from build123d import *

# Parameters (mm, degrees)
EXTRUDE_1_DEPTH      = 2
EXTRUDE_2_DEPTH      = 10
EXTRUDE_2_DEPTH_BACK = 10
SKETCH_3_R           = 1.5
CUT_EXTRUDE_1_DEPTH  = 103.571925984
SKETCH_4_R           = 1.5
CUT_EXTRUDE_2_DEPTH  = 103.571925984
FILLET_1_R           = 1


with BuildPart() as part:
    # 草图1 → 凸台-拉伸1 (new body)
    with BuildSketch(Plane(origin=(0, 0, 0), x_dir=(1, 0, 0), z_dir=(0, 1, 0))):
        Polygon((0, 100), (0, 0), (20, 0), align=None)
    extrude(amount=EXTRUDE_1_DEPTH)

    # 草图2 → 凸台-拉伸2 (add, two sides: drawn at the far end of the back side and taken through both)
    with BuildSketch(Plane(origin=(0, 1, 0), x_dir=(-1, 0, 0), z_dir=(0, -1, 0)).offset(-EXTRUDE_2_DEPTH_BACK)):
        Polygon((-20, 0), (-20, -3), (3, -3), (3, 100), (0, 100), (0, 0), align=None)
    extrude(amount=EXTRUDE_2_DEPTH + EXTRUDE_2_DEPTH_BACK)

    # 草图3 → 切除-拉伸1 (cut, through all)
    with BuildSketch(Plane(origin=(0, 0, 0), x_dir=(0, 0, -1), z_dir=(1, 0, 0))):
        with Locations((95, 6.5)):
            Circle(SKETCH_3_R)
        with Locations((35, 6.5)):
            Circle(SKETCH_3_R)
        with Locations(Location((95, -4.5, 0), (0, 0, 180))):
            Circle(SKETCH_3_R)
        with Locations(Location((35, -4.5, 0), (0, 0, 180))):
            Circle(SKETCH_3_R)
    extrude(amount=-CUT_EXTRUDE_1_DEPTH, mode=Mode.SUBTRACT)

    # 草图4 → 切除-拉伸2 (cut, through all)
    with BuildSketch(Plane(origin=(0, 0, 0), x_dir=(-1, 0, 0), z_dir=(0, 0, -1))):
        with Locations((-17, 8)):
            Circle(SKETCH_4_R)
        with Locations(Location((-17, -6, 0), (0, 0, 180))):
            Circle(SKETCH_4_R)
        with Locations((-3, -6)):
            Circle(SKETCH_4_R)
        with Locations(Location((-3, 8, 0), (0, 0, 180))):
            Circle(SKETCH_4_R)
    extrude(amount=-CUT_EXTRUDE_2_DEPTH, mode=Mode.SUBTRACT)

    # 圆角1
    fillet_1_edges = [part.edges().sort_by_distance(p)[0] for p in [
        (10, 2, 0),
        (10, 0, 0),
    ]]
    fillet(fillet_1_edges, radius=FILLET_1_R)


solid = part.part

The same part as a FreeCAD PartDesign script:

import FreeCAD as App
import Part
import Sketcher
from FreeCAD import Vector


def edges_at(feature, points):
    """Names of the edges that pass closest to the given points."""
    edges = feature.Shape.Edges
    near = lambda p: min(range(len(edges)), key=lambda i: edges[i].distToShape(Part.Vertex(*p))[0])
    return sorted({f"Edge{near(p) + 1}" for p in points})

doc = App.newDocument("Part")
params = doc.addObject("Spreadsheet::Sheet", "Params")
for row, (alias, value) in enumerate([
    ("sketch1_width", "20 mm"),
    ("sketch1_height", "100 mm"),
    ("pad1_length", "2 mm"),
    ("sketch2_width", "23 mm"),
    ("sketch2_width2", "3 mm"),
    ("sketch2_height", "103 mm"),
    ("pad2_length", "10 mm"),
    ("pad2_length2", "10 mm"),
    ("sketch3_diameter", "3 mm"),
    ("sketch4_diameter", "3 mm"),
    ("fillet_radius", "1 mm"),
], start=1):
    params.set(f"A{row}", alias)
    params.set(f"B{row}", "=" + value)
    params.setAlias(f"B{row}", alias)

body = doc.addObject("PartDesign::Body", "Body")

sketch1 = body.newObject("Sketcher::SketchObject", "Sketch")
sketch1.AttachmentSupport = (doc.getObject("XZ_Plane"), [""])
sketch1.MapMode = "FlatFace"
sketch1.addGeometry([
    Part.LineSegment(Vector(0, -100, 0), Vector(0, 0, 0)),
    Part.LineSegment(Vector(0, 0, 0), Vector(20, 0, 0)),
    Part.LineSegment(Vector(20, 0, 0), Vector(0, -100, 0)),
], False)
sketch1.addConstraint([
    Sketcher.Constraint("Coincident", 0, 2, 1, 1),
    Sketcher.Constraint("Coincident", 1, 2, 2, 1),
    Sketcher.Constraint("Coincident", 2, 2, 0, 1),
    Sketcher.Constraint("Vertical", 0),
    Sketcher.Constraint("Horizontal", 1),
    Sketcher.Constraint("Coincident", 0, 2, -1, 1),
    Sketcher.Constraint("DistanceX", 1, 1, 1, 2, 20.0),
    Sketcher.Constraint("DistanceY", 0, 1, 0, 2, 100.0),
])
sketch1.setExpression("Constraints[6]", "Params.sketch1_width")
sketch1.setExpression("Constraints[7]", "Params.sketch1_height")
pad1 = body.newObject("PartDesign::Pad", "Pad")
pad1.Profile = sketch1
pad1.setExpression("Length", "Params.pad1_length")
pad1.Reversed = True

sketch2 = body.newObject("Sketcher::SketchObject", "Sketch001")
sketch2.AttachmentSupport = (doc.getObject("XZ_Plane"), [""])
sketch2.MapMode = "FlatFace"
sketch2.AttachmentOffset = App.Placement(Vector(0, 0, -1), App.Rotation())
sketch2.addGeometry([
    Part.LineSegment(Vector(20, 0, 0), Vector(20, 3, 0)),
    Part.LineSegment(Vector(20, 3, 0), Vector(-3, 3, 0)),
    Part.LineSegment(Vector(-3, 3, 0), Vector(-3, -100, 0)),
    Part.LineSegment(Vector(-3, -100, 0), Vector(0, -100, 0)),
    Part.LineSegment(Vector(0, -100, 0), Vector(0, 0, 0)),
    Part.LineSegment(Vector(0, 0, 0), Vector(20, 0, 0)),
], False)
sketch2.addConstraint([
    Sketcher.Constraint("Coincident", 0, 2, 1, 1),
    Sketcher.Constraint("Coincident", 1, 2, 2, 1),
    Sketcher.Constraint("Coincident", 2, 2, 3, 1),
    Sketcher.Constraint("Coincident", 3, 2, 4, 1),
    Sketcher.Constraint("Coincident", 4, 2, 5, 1),
    Sketcher.Constraint("Coincident", 5, 2, 0, 1),
    Sketcher.Constraint("Vertical", 0),
    Sketcher.Constraint("Horizontal", 1),
    Sketcher.Constraint("Vertical", 2),
    Sketcher.Constraint("Horizontal", 3),
    Sketcher.Constraint("Vertical", 4),
    Sketcher.Constraint("Horizontal", 5),
    Sketcher.Constraint("Coincident", 4, 2, -1, 1),
    Sketcher.Constraint("Equal", 3, 0),
    Sketcher.Constraint("DistanceX", 1, 2, 1, 1, 23.0),
    Sketcher.Constraint("DistanceX", 3, 1, 3, 2, 3.0),
    Sketcher.Constraint("DistanceY", 2, 2, 2, 1, 103.0),
])
sketch2.setExpression("Constraints[14]", "Params.sketch2_width")
sketch2.setExpression("Constraints[15]", "Params.sketch2_width2")
sketch2.setExpression("Constraints[16]", "Params.sketch2_height")
pad2 = body.newObject("PartDesign::Pad", "Pad001")
pad2.Profile = sketch2
pad2.Type = "TwoLengths"
pad2.setExpression("Length", "Params.pad2_length")
pad2.setExpression("Length2", "Params.pad2_length2")

sketch3 = body.newObject("Sketcher::SketchObject", "Sketch002")
sketch3.AttachmentSupport = (doc.getObject("YZ_Plane"), [""])
sketch3.MapMode = "FlatFace"
sketch3.addGeometry([
    Part.Circle(Vector(6.5, -95, 0), Vector(0, 0, 1), 1.5),
    Part.Circle(Vector(6.5, -35, 0), Vector(0, 0, 1), 1.5),
    Part.Circle(Vector(-4.5, -95, 0), Vector(0, 0, 1), 1.5),
    Part.Circle(Vector(-4.5, -35, 0), Vector(0, 0, 1), 1.5),
], False)
sketch3.addConstraint([
    Sketcher.Constraint("Equal", 0, 1),
    Sketcher.Constraint("Equal", 1, 2),
    Sketcher.Constraint("Equal", 2, 3),
    Sketcher.Constraint("Horizontal", 0, 3, 2, 3),
    Sketcher.Constraint("Horizontal", 1, 3, 3, 3),
    Sketcher.Constraint("Vertical", 0, 3, 1, 3),
    Sketcher.Constraint("Vertical", 2, 3, 3, 3),
    Sketcher.Constraint("Diameter", 0, 3.0),
    Sketcher.Constraint("DistanceY", 0, 3, -1, 1, 95.0),
    Sketcher.Constraint("DistanceY", 1, 3, -1, 1, 35.0),
    Sketcher.Constraint("DistanceX", 2, 3, 0, 3, 11.0),
    Sketcher.Constraint("DistanceX", -1, 1, 0, 3, 6.5),
])
sketch3.setExpression("Constraints[7]", "Params.sketch3_diameter")
pocket1 = body.newObject("PartDesign::Pocket", "Pocket")
pocket1.Profile = sketch3
pocket1.Type = "ThroughAll"

sketch4 = body.newObject("Sketcher::SketchObject", "Sketch003")
sketch4.AttachmentSupport = (doc.getObject("XY_Plane"), [""])
sketch4.MapMode = "FlatFace"
sketch4.addGeometry([
    Part.Circle(Vector(17, 8, 0), Vector(0, 0, 1), 1.5),
    Part.Circle(Vector(17, -6, 0), Vector(0, 0, 1), 1.5),
    Part.Circle(Vector(3, -6, 0), Vector(0, 0, 1), 1.5),
    Part.Circle(Vector(3, 8, 0), Vector(0, 0, 1), 1.5),
], False)
sketch4.addConstraint([
    Sketcher.Constraint("Equal", 0, 1),
    Sketcher.Constraint("Equal", 1, 2),
    Sketcher.Constraint("Equal", 2, 3),
    Sketcher.Constraint("Horizontal", 1, 3, 2, 3),
    Sketcher.Constraint("Horizontal", 0, 3, 3, 3),
    Sketcher.Constraint("Vertical", 0, 3, 1, 3),
    Sketcher.Constraint("Vertical", 2, 3, 3, 3),
    Sketcher.Constraint("Diameter", 0, 3.0),
    Sketcher.Constraint("DistanceX", -1, 1, 0, 3, 17.0),
    Sketcher.Constraint("DistanceY", -1, 1, 0, 3, 8.0),
    Sketcher.Constraint("DistanceY", 1, 3, -1, 1, 6.0),
    Sketcher.Constraint("DistanceX", -1, 1, 2, 3, 3.0),
])
sketch4.setExpression("Constraints[7]", "Params.sketch4_diameter")
pocket2 = body.newObject("PartDesign::Pocket", "Pocket001")
pocket2.Profile = sketch4
pocket2.Type = "ThroughAll"
pocket2.Reversed = True
doc.recompute()

fillet = body.newObject("PartDesign::Fillet", "Fillet")
fillet.Base = (pocket2, edges_at(pocket2, [(10, 2, 0), (10, 0, 0)]))
fillet.setExpression("Radius", "Params.fillet_radius")

doc.recompute()
